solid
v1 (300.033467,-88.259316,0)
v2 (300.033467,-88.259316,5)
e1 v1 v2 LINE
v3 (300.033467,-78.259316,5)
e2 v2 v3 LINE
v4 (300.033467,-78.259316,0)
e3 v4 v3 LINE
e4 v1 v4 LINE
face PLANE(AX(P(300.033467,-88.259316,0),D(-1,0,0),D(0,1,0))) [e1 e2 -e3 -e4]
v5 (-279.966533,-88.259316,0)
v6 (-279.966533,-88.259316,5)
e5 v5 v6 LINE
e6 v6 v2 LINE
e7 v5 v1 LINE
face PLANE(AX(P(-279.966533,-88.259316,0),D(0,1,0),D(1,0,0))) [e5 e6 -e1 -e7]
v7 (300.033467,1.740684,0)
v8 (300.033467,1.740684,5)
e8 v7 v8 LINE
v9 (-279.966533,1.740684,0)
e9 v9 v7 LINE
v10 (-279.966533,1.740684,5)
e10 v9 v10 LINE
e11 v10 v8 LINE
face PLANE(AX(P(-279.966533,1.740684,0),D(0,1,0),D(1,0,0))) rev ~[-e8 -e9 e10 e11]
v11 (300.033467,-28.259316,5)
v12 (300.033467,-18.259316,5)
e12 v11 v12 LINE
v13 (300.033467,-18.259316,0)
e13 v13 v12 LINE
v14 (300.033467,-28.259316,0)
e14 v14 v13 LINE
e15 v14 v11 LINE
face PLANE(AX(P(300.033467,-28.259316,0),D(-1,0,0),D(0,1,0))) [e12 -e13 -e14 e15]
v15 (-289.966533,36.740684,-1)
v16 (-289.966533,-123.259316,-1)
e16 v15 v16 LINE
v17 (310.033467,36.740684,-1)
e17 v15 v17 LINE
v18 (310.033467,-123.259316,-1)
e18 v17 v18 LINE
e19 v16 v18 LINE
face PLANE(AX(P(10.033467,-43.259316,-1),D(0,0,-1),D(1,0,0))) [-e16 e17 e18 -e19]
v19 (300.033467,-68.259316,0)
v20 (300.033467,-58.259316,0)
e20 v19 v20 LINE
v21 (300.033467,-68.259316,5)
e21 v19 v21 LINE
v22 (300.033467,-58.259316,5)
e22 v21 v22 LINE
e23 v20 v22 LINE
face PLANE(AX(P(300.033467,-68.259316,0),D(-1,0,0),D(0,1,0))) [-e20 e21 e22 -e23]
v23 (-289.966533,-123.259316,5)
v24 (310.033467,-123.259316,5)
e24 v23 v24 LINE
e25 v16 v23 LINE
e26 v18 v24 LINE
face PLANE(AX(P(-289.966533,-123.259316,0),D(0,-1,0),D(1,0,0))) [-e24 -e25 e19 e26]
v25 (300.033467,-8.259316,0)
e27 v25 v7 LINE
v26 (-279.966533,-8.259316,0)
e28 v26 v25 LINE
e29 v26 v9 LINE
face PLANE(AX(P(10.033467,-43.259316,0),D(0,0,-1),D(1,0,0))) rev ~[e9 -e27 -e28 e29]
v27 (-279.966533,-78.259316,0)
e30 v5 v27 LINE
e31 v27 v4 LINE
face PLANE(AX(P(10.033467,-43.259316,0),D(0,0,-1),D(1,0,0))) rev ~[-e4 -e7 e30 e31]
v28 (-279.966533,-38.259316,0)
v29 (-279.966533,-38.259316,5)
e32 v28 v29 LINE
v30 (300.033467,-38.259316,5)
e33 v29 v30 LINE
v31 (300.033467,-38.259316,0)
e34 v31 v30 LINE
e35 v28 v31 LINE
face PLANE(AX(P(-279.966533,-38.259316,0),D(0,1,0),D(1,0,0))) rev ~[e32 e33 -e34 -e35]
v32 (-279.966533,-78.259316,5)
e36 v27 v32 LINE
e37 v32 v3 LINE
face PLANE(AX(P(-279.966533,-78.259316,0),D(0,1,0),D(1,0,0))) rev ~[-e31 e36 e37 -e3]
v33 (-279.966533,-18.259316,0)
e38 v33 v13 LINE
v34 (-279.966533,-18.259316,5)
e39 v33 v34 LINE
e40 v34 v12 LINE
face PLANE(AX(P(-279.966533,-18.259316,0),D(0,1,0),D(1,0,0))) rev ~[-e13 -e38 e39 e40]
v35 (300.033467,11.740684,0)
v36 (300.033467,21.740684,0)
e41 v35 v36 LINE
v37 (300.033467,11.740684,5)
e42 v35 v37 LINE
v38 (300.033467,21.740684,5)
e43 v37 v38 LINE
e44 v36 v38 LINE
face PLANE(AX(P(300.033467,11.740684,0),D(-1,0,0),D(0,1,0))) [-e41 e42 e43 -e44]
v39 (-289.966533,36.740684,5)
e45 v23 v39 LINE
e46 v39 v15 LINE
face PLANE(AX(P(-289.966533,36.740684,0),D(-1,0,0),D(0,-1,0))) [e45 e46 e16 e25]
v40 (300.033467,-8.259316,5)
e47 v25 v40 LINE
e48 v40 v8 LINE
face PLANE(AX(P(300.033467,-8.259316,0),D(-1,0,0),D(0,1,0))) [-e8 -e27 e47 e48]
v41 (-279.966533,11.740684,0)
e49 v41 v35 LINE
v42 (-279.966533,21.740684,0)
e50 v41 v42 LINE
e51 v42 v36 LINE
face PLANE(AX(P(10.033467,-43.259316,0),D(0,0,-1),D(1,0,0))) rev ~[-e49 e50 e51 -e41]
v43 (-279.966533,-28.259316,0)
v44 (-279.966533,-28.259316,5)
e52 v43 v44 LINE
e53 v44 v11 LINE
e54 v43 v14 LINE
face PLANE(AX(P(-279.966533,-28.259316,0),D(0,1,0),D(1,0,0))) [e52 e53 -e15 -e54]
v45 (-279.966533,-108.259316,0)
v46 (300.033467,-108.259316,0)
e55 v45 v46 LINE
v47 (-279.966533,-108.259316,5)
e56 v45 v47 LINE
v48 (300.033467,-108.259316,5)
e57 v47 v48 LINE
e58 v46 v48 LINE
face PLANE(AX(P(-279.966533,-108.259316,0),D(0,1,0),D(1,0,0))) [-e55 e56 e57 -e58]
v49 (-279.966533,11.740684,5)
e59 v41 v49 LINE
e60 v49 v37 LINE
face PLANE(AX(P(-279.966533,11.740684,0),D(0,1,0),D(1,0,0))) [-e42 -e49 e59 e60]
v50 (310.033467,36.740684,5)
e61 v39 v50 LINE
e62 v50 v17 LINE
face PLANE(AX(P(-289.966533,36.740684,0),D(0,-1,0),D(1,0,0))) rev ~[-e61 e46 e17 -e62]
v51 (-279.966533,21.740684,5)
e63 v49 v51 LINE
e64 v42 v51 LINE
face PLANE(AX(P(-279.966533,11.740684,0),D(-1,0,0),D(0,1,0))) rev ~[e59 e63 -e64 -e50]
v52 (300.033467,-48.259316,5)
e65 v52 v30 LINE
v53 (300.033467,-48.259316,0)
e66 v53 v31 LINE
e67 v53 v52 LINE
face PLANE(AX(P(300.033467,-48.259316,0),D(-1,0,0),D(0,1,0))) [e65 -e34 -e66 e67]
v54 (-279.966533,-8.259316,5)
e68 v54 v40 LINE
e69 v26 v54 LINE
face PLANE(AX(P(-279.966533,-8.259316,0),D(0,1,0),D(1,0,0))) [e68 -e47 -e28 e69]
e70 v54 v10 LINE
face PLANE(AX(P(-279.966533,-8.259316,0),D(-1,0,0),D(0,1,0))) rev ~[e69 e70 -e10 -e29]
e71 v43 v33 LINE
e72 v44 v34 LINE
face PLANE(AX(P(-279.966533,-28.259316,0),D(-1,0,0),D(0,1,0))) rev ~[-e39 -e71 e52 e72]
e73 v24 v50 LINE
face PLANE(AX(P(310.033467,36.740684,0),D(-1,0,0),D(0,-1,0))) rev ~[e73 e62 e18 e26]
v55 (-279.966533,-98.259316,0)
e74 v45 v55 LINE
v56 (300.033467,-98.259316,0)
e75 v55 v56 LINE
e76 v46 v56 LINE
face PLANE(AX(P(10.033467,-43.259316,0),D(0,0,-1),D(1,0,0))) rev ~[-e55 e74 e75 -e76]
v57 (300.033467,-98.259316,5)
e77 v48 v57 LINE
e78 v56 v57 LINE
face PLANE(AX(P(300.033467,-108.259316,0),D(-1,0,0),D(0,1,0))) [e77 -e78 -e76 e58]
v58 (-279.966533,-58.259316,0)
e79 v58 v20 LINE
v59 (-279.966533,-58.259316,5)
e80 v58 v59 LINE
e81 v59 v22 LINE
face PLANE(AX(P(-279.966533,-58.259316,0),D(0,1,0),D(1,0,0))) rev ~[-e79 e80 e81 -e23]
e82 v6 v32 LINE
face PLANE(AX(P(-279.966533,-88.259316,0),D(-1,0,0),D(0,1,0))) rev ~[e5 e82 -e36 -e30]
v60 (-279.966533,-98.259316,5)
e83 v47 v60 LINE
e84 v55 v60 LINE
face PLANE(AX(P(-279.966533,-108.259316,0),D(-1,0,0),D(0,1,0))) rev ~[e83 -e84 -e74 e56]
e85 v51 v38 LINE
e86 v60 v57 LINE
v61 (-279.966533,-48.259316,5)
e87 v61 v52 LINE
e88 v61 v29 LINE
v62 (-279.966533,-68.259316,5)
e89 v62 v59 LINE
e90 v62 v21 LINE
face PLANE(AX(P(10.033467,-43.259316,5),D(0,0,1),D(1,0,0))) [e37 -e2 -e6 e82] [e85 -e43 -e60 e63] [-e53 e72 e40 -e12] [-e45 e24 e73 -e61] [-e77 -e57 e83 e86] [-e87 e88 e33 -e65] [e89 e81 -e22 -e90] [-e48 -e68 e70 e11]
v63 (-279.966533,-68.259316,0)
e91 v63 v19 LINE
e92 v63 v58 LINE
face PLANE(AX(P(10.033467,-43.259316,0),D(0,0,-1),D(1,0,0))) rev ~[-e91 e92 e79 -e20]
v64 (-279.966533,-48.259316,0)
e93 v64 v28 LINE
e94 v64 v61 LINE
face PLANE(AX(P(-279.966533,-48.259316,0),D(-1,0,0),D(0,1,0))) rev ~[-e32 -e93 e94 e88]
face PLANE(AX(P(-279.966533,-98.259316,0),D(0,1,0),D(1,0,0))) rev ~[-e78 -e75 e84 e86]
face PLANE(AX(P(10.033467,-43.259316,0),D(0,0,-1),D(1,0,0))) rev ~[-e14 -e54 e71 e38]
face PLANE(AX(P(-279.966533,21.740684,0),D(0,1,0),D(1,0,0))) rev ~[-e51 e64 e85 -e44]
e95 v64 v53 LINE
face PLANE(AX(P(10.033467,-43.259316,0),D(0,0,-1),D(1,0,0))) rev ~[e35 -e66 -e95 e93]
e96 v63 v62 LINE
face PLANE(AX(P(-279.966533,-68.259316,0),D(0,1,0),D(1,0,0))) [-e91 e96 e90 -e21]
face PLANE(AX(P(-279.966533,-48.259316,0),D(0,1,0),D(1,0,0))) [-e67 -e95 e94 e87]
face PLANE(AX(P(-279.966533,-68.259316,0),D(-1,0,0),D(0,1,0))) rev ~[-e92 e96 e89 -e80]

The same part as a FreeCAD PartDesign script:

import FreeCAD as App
import Part
import Sketcher
from FreeCAD import Vector


def add_polygon(sketch, points):
    """Adds a closed chain of lines whose ends are joined by coincident constraints."""
    first, n = sketch.GeometryCount, len(points)
    for a, b in zip(points, points[1:] + points[:1]):
        sketch.addGeometry(Part.LineSegment(App.Vector(*a, 0), App.Vector(*b, 0)), False)
    for i in range(n):
        sketch.addConstraint(Sketcher.Constraint("Coincident", first + i, 2, first + (i + 1) % n, 1))

doc = App.newDocument("Part")
body = doc.addObject("PartDesign::Body", "Body")

# Sketch on XY plane
sketch1 = doc.addObject("Sketcher::SketchObject", "Sketch")
body.addObject(sketch1)
sketch1.AttachmentSupport = (doc.XY_Plane, [""])
sketch1.MapMode = "FlatFace"
add_polygon(sketch1, [(-290, 37), (-290, -123), (310, -123), (310, 37)])  # lines 0-3
add_polygon(sketch1, [(300, -108), (-280, -108), (-280, -98), (300, -98)])  # lines 4-7
add_polygon(sketch1, [(300, -88), (-280, -88), (-280, -78), (300, -78)])  # lines 8-11
add_polygon(sketch1, [(300, -68), (-280, -68), (-280, -58), (300, -58)])  # lines 12-15
add_polygon(sketch1, [(300, -48), (-280, -48), (-280, -38), (300, -38)])  # lines 16-19
add_polygon(sketch1, [(300, -28), (-280, -28), (-280, -18), (300, -18)])  # lines 20-23
add_polygon(sketch1, [(300, -8), (-280, -8), (-280, 2), (300, 2)])  # lines 24-27
add_polygon(sketch1, [(300, 12), (-280, 12), (-280, 22), (300, 22)])  # lines 28-31
sketch1.addConstraint([
    Sketcher.Constraint("Vertical", 0),
    Sketcher.Constraint("Horizontal", 1),
    Sketcher.Constraint("Vertical", 2),
    Sketcher.Constraint("Horizontal", 3),
    Sketcher.Constraint("Horizontal", 4),
    Sketcher.Constraint("Vertical", 5),
    Sketcher.Constraint("Horizontal", 6),
    Sketcher.Constraint("Vertical", 7),
    Sketcher.Constraint("Horizontal", 8),
    Sketcher.Constraint("Vertical", 9),
    Sketcher.Constraint("Horizontal", 10),
    Sketcher.Constraint("Vertical", 11),
    Sketcher.Constraint("Horizontal", 12),
    Sketcher.Constraint("Vertical", 13),
    Sketcher.Constraint("Horizontal", 14),
    Sketcher.Constraint("Vertical", 15),
    Sketcher.Constraint("Horizontal", 16),
    Sketcher.Constraint("Vertical", 17),
    Sketcher.Constraint("Horizontal", 18),
    Sketcher.Constraint("Vertical", 19),
    Sketcher.Constraint("Horizontal", 20),
    Sketcher.Constraint("Vertical", 21),
    Sketcher.Constraint("Horizontal", 22),
    Sketcher.Constraint("Vertical", 23),
    Sketcher.Constraint("Horizontal", 24),
    Sketcher.Constraint("Vertical", 25),
    Sketcher.Constraint("Horizontal", 26),
    Sketcher.Constraint("Vertical", 27),
    Sketcher.Constraint("Horizontal", 28),
    Sketcher.Constraint("Vertical", 29),
    Sketcher.Constraint("Horizontal", 30),
    Sketcher.Constraint("Vertical", 31),
    Sketcher.Constraint("Vertical", 5, 2, 8, 2),
    Sketcher.Constraint("Vertical", 7, 2, 10, 2),
    Sketcher.Constraint("Vertical", 9, 2, 12, 2),
    Sketcher.Constraint("Vertical", 11, 2, 14, 2),
    Sketcher.Constraint("Vertical", 13, 2, 16, 2),
    Sketcher.Constraint("Vertical", 15, 2, 18, 2),
    Sketcher.Constraint("Vertical", 17, 2, 20, 2),
    Sketcher.Constraint("Vertical", 19, 2, 22, 2),
    Sketcher.Constraint("Vertical", 21, 2, 24, 2),
    Sketcher.Constraint("Vertical", 23, 2, 26, 2),
    Sketcher.Constraint("Vertical", 25, 2, 28, 2),
    Sketcher.Constraint("Vertical", 27, 2, 30, 2),
    Sketcher.Constraint("Equal", 7, 9),
    Sketcher.Constraint("Equal", 11, 13),
    Sketcher.Constraint("Equal", 15, 17),
    Sketcher.Constraint("Equal", 19, 21),
    Sketcher.Constraint("Equal", 23, 25),
    Sketcher.Constraint("Equal", 27, 29),
    Sketcher.Constraint("DistanceX", 1, 1, 1, 2, 600.0),
    Sketcher.Constraint("DistanceX", 4, 2, 4, 1, 580.0),
    Sketcher.Constraint("DistanceY", 0, 2, 0, 1, 160.0),
    Sketcher.Constraint("DistanceY", 5, 1, 5, 2, 10.0),
    Sketcher.Constraint("DistanceX", 0, 2, 4, 2, 10.0),
    Sketcher.Constraint("DistanceY", 0, 2, 4, 2, 15.0),
    Sketcher.Constraint("DistanceY", 5, 2, 8, 2, 10.0),
    Sketcher.Constraint("DistanceY", 9, 2, 12, 2, 10.0),
    Sketcher.Constraint("DistanceY", 13, 2, 16, 2, 10.0),
    Sketcher.Constraint("DistanceY", 17, 2, 20, 2, 10.0),
    Sketcher.Constraint("DistanceY", 21, 2, 24, 2, 10.0),
    Sketcher.Constraint("DistanceY", 25, 2, 28, 2, 10.0),
    Sketcher.Constraint("DistanceX", 0, 2, -1, 1, 289.966533),
    Sketcher.Constraint("DistanceY", 0, 2, -1, 1, 123.259316),
])
pad1 = doc.addObject("PartDesign::Pad", "Pad")
body.addObject(pad1)
pad1.Profile = sketch1
pad1.Length = 5

# Sketch on XY plane
sketch2 = doc.addObject("Sketcher::SketchObject", "Sketch001")
body.addObject(sketch2)
sketch2.AttachmentSupport = (doc.XY_Plane, [""])
sketch2.MapMode = "FlatFace"
add_polygon(sketch2, [(-290, -123), (-290, 37), (310, 37), (310, -123)])  # lines 0-3
sketch2.addConstraint([
    Sketcher.Constraint("Vertical", 0),
    Sketcher.Constraint("Horizontal", 1),
    Sketcher.Constraint("Vertical", 2),
    Sketcher.Constraint("Horizontal", 3),
    Sketcher.Constraint("DistanceX", 1, 1, 1, 2, 600.0),
    Sketcher.Constraint("DistanceY", 0, 1, 0, 2, 160.0),
    Sketcher.Constraint("DistanceX", 0, 2, -1, 1, 289.966533),
    Sketcher.Constraint("DistanceY", -1, 1, 0, 2, 36.740684),
])
pad2 = doc.addObject("PartDesign::Pad", "Pad001")
body.addObject(pad2)
pad2.Profile = sketch2
pad2.Length = 1
pad2.Reversed = True

doc.recompute()
